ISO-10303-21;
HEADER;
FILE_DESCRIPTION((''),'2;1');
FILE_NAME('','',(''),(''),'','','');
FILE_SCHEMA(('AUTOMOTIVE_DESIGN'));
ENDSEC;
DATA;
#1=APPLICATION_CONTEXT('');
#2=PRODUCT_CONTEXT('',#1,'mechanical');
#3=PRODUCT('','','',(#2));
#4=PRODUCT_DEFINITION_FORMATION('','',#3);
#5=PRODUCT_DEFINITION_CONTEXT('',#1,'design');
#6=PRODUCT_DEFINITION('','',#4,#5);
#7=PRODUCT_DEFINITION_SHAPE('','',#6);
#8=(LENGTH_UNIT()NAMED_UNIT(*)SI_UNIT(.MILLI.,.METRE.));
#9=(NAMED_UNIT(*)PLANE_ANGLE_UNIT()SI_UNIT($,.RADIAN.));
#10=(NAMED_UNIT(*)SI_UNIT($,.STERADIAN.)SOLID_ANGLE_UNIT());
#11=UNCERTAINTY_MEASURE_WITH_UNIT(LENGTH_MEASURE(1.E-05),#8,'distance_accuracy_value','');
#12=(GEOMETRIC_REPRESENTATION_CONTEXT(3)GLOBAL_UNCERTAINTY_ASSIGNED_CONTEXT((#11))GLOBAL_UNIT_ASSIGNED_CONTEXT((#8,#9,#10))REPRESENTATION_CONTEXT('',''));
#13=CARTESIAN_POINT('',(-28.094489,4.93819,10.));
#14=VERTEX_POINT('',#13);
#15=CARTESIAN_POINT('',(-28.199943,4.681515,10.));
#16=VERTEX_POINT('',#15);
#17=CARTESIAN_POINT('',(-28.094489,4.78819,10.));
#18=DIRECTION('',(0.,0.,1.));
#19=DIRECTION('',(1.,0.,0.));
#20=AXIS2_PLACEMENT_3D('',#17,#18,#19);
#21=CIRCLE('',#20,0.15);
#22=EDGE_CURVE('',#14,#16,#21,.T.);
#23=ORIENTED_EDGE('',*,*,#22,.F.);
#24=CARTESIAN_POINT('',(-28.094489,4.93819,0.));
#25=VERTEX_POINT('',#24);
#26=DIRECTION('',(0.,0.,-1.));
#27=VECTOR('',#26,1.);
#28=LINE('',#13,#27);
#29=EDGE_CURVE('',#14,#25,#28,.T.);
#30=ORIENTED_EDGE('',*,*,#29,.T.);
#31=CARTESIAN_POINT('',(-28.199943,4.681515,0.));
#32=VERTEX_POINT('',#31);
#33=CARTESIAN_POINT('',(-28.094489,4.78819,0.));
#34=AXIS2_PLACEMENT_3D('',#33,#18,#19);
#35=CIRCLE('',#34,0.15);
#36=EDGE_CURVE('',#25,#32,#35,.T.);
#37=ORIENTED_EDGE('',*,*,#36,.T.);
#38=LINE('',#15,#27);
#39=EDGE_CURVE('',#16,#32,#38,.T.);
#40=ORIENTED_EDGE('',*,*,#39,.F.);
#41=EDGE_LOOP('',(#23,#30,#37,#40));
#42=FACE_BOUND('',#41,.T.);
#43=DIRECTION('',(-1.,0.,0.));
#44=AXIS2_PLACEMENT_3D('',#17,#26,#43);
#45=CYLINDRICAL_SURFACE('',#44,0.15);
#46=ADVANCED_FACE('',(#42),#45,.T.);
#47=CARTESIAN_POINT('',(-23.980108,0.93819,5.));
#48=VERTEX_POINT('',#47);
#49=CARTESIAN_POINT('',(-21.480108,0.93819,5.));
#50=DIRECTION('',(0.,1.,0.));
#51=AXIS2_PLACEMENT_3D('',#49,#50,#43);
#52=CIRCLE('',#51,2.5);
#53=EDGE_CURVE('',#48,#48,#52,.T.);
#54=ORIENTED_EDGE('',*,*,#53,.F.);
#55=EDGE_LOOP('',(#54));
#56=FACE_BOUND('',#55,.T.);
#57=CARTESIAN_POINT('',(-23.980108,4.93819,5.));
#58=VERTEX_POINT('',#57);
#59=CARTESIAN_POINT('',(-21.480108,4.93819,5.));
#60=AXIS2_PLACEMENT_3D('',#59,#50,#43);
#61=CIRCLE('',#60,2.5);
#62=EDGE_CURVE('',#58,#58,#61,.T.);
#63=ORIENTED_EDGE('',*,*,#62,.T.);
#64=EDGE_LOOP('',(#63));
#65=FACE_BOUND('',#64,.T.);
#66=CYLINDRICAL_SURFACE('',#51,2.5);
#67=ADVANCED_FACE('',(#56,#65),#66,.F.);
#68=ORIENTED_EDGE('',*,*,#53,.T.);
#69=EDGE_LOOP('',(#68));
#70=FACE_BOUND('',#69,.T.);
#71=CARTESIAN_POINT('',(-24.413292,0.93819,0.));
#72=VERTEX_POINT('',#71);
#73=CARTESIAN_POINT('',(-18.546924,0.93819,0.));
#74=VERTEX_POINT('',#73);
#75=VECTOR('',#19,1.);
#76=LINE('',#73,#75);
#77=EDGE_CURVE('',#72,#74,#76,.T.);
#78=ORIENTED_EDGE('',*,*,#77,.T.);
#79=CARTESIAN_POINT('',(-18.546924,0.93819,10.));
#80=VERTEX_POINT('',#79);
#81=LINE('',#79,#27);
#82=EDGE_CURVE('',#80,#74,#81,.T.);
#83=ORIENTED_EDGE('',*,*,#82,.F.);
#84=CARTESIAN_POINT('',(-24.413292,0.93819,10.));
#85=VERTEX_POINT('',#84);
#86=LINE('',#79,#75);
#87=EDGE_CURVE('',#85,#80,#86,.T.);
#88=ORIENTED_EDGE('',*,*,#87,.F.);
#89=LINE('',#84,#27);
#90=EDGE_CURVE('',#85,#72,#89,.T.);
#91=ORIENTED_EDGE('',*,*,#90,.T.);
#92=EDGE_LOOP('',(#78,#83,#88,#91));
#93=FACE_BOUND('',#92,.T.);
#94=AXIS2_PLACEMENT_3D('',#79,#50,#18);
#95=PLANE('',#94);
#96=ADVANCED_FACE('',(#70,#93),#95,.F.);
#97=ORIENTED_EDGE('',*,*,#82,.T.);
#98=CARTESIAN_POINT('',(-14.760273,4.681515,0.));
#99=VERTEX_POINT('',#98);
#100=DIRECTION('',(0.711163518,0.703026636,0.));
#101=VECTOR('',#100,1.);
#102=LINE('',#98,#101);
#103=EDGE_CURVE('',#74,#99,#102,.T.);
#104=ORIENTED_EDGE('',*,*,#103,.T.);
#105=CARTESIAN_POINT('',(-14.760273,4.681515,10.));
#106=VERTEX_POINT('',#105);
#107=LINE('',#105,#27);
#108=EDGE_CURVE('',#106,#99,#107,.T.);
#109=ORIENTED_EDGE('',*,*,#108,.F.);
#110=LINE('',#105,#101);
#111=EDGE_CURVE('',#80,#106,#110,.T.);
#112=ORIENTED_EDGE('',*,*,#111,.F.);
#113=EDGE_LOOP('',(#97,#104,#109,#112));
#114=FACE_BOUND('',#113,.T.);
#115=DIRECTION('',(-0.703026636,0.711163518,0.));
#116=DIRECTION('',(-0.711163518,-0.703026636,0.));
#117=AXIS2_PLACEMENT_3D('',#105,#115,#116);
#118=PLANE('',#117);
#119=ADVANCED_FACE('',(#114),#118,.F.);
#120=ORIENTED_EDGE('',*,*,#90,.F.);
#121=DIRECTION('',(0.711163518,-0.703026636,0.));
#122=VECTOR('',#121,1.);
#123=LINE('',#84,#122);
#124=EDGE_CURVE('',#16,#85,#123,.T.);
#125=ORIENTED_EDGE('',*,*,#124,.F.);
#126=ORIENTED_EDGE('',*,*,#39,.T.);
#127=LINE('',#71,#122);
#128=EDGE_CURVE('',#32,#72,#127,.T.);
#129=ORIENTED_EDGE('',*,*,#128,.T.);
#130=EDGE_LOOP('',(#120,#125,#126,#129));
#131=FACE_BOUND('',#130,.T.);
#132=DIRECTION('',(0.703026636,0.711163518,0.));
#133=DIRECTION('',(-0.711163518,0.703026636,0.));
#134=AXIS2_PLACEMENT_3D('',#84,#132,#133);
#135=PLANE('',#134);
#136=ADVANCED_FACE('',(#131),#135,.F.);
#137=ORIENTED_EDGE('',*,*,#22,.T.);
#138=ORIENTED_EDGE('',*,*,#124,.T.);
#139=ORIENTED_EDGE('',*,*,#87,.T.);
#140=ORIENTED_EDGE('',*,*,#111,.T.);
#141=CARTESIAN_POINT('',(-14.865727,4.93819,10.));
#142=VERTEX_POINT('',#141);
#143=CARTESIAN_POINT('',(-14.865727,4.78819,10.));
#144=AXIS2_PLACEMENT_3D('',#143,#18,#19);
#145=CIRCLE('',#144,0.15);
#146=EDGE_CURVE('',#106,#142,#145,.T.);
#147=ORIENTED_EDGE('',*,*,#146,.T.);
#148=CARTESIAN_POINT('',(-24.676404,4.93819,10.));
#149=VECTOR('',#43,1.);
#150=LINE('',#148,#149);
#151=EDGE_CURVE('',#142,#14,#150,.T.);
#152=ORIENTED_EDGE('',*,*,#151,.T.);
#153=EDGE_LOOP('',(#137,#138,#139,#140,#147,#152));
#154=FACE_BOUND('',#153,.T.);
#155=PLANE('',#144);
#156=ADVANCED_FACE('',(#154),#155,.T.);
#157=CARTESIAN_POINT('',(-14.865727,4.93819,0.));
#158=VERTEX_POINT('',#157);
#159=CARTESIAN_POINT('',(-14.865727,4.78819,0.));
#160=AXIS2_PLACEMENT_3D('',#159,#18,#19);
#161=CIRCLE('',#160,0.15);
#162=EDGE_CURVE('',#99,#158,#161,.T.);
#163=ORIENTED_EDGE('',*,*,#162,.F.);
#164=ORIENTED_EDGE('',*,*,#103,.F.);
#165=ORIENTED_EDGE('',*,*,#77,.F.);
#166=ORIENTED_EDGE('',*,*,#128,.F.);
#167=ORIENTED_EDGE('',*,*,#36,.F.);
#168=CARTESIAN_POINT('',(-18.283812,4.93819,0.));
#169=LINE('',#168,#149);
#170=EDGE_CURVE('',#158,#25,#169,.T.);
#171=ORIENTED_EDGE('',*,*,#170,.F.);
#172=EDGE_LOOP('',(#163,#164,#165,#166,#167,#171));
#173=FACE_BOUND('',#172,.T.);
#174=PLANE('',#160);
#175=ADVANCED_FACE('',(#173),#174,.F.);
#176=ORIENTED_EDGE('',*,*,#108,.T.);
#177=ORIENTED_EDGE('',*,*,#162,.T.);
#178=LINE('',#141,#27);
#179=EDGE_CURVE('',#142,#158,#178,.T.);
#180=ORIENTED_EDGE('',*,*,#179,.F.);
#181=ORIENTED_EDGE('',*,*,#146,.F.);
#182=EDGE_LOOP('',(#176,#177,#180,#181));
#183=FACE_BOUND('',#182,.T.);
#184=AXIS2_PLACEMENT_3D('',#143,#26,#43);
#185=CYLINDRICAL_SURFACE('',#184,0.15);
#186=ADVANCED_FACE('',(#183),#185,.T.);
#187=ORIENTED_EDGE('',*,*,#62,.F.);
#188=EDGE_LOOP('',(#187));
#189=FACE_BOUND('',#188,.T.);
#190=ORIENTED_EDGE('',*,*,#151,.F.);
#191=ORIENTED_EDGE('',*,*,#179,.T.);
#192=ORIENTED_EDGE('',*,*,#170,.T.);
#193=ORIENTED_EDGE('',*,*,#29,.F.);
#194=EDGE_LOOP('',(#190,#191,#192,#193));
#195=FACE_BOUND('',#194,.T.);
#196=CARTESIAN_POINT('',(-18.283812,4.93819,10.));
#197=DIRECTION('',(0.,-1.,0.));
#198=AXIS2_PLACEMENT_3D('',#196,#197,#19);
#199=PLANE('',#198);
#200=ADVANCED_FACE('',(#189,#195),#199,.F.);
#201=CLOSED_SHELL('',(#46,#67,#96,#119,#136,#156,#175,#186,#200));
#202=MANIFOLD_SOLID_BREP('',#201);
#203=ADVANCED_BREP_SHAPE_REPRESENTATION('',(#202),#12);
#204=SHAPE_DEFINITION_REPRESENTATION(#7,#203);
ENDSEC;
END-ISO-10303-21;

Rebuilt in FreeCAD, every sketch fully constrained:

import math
import FreeCAD as App
import Part
import Sketcher
Q = App.Units.Quantity

doc = App.newDocument("Part")
params = doc.addObject("Spreadsheet::Sheet", "Params")
for row, (alias, value) in enumerate([
    ("sketch1_radius", "0.15 mm"),
    ("pad1_length", "10 mm"),
    ("sketch2_diameter", "5 mm"),
], start=1):
    params.set(f"A{row}", alias)
    params.set(f"B{row}", "=" + value)
    params.setAlias(f"B{row}", alias)

body = doc.addObject("PartDesign::Body", "Body")

sketch1 = doc.addObject("Sketcher::SketchObject", "Sketch")
body.addObject(sketch1)
sketch1.AttachmentSupport = (doc.XY_Plane, [""])
sketch1.MapMode = "FlatFace"
sketch1.addGeometry([
    Part.ArcOfCircle(Part.Circle(App.Vector(-14.87, 4.79, 0), App.Vector(0, 0, 1), 0.15), math.radians(-45), math.radians(90)),
    Part.LineSegment(App.Vector(-14.87, 4.94, 0), App.Vector(-28.09, 4.94, 0)),
    Part.ArcOfCircle(Part.Circle(App.Vector(-28.09, 4.79, 0), App.Vector(0, 0, 1), 0.15), math.radians(90), math.radians(225)),
    Part.LineSegment(App.Vector(-28.2, 4.68, 0), App.Vector(-24.41, 0.94, 0)),
    Part.LineSegment(App.Vector(-24.41, 0.94, 0), App.Vector(-18.55, 0.94, 0)),
    Part.LineSegment(App.Vector(-18.55, 0.94, 0), App.Vector(-14.76, 4.68, 0)),
], False)
sketch1.addConstraint([
    Sketcher.Constraint("Tangent", 0, 2, 1, 1),
    Sketcher.Constraint("Tangent", 1, 2, 2, 1),
    Sketcher.Constraint("Tangent", 2, 2, 3, 1),
    Sketcher.Constraint("Coincident", 3, 2, 4, 1),
    Sketcher.Constraint("Coincident", 4, 2, 5, 1),
    Sketcher.Constraint("Tangent", 5, 2, 0, 1),
    Sketcher.Constraint("Horizontal", 1),
    Sketcher.Constraint("Horizontal", 4),
    Sketcher.Constraint("Equal", 0, 2),
    Sketcher.Constraint("Horizontal", 2, 2, 5, 2),
    Sketcher.Constraint("Radius", 0, Q("0.15 mm")),
    Sketcher.Constraint("DistanceY", 3, 2, 1, 2, Q("4 mm")),
    Sketcher.Constraint("DistanceX", 4, 1, 4, 2, Q("5.866368 mm")),
    Sketcher.Constraint("DistanceX", 1, 2, 1, 1, Q("13.228762 mm")),
    Sketcher.Constraint("DistanceY", -1, 1, 0, 3, Q("4.78819 mm")),
    Sketcher.Constraint("DistanceX", 2, 3, -1, 1, Q("28.094489 mm")),
])
sketch1.setExpression("Constraints[10]", "Params.sketch1_radius")
pad1 = doc.addObject("PartDesign::Pad", "Pad")
body.addObject(pad1)
pad1.Profile = sketch1
pad1.setExpression("Length", "Params.pad1_length")

sketch2 = doc.addObject("Sketcher::SketchObject", "Sketch001")
body.addObject(sketch2)
sketch2.AttachmentSupport = (doc.XZ_Plane, [""])
sketch2.MapMode = "FlatFace"
sketch2.AttachmentOffset = App.Placement(App.Vector(0, 0, -4.93819), App.Rotation())
sketch2.addGeometry(Part.Circle(App.Vector(-21.5, 5, 0), App.Vector(0, 0, 1), 2.5), False)
sketch2.addConstraint([
    Sketcher.Constraint("Diameter", 0, Q("5 mm")),
    Sketcher.Constraint("DistanceY", -1, 1, 0, 3, Q("5 mm")),
    Sketcher.Constraint("DistanceX", 0, 3, -1, 1, Q("21.480108 mm")),
])
sketch2.setExpression("Constraints[0]", "Params.sketch2_diameter")
pocket1 = doc.addObject("PartDesign::Pocket", "Pocket")
body.addObject(pocket1)
pocket1.Profile = sketch2
pocket1.Type = "ThroughAll"
pocket1.Reversed = True

doc.recompute()
